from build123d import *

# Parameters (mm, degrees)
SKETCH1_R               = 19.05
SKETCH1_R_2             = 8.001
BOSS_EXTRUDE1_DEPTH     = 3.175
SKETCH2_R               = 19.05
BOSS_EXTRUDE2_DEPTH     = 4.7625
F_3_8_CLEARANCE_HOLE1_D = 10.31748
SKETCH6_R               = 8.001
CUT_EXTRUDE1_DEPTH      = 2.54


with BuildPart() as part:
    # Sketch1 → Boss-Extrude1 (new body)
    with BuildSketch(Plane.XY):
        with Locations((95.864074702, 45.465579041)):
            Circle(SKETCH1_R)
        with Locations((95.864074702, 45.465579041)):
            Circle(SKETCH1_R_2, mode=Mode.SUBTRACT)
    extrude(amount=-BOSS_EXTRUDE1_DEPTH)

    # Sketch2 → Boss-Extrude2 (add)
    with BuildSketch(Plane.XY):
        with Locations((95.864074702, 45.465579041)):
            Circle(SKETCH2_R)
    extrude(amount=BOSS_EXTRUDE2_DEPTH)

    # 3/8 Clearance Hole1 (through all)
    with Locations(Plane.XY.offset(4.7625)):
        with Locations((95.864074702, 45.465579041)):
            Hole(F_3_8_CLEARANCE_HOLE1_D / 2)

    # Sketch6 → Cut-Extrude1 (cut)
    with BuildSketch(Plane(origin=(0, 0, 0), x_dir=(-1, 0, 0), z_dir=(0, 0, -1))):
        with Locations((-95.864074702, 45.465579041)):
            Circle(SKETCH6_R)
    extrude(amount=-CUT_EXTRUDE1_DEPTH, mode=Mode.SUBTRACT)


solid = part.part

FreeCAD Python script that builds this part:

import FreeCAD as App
import Part
import Sketcher
Q = App.Units.Quantity

doc = App.newDocument("Part")
body = doc.addObject("PartDesign::Body", "Body")

sketch1 = body.newObject("Sketcher::SketchObject", "Sketch")
sketch1.AttachmentSupport = (doc.getObject("XY_Plane"), [""])
sketch1.MapMode = "FlatFace"
sketch1.addGeometry([
    Part.Circle(App.Vector(96, 45, 0), App.Vector(0, 0, 1), 19),
    Part.Circle(App.Vector(96, 45, 0), App.Vector(0, 0, 1), 8),
], False)
sketch1.addConstraint([
    Sketcher.Constraint("Coincident", 1, 3, 0, 3),
    Sketcher.Constraint("Diameter", 0, Q("1.5 in")),
    Sketcher.Constraint("Diameter", 1, Q("0.63 in")),
    Sketcher.Constraint("DistanceY", -1, 1, 0, 3, 45.465579),
    Sketcher.Constraint("DistanceX", -1, 1, 0, 3, 95.864075),
])
pad1 = body.newObject("PartDesign::Pad", "Pad")
pad1.Profile = sketch1
pad1.Length = Q("0.125 in")
pad1.Reversed = True

sketch2 = body.newObject("Sketcher::SketchObject", "Sketch001")
sketch2.AttachmentSupport = (doc.getObject("XY_Plane"), [""])
sketch2.MapMode = "FlatFace"
sketch2.addGeometry(Part.Circle(App.Vector(96, 45, 0), App.Vector(0, 0, 1), 19), False)
sketch2.addConstraint([
    Sketcher.Constraint("Diameter", 0, Q("1.5 in")),
    Sketcher.Constraint("DistanceY", -1, 1, 0, 3, 45.465579),
    Sketcher.Constraint("DistanceX", -1, 1, 0, 3, 95.864075),
])
pad2 = body.newObject("PartDesign::Pad", "Pad001")
pad2.Profile = sketch2
pad2.Length = Q("0.1875 in")

sketch3 = body.newObject("Sketcher::SketchObject", "Sketch002")
sketch3.AttachmentSupport = (doc.getObject("XY_Plane"), [""])
sketch3.MapMode = "FlatFace"
sketch3.AttachmentOffset = App.Placement(App.Vector(0, 0, 0.1875 * 25.4), App.Rotation())
sketch3.addGeometry(Part.Circle(App.Vector(96, 45, 0), App.Vector(0, 0, 1), 5), False)
sketch3.addConstraint([
    Sketcher.Constraint("Diameter", 0, Q("0.4062 in")),
    Sketcher.Constraint("DistanceY", -1, 1, 0, 3, 45.465579),
    Sketcher.Constraint("DistanceX", -1, 1, 0, 3, 95.864075),
])
doc.recompute()
hole = body.newObject("PartDesign::Hole", "Hole")
hole.Profile = sketch3
hole.ThreadType = "None"
hole.Diameter = Q("0.4062 in")
hole.DepthType = "ThroughAll"

sketch4 = body.newObject("Sketcher::SketchObject", "Sketch003")
sketch4.AttachmentSupport = (doc.getObject("XY_Plane"), [""])
sketch4.MapMode = "FlatFace"
sketch4.addGeometry(Part.Circle(App.Vector(96, 45, 0), App.Vector(0, 0, 1), 8), False)
sketch4.addConstraint([
    Sketcher.Constraint("Diameter", 0, Q("0.63 in")),
    Sketcher.Constraint("DistanceY", -1, 1, 0, 3, 45.465579),
    Sketcher.Constraint("DistanceX", -1, 1, 0, 3, 95.864075),
])
pocket1 = body.newObject("PartDesign::Pocket", "Pocket")
pocket1.Profile = sketch4
pocket1.Length = Q("0.1 in")
pocket1.Reversed = True

doc.recompute()
